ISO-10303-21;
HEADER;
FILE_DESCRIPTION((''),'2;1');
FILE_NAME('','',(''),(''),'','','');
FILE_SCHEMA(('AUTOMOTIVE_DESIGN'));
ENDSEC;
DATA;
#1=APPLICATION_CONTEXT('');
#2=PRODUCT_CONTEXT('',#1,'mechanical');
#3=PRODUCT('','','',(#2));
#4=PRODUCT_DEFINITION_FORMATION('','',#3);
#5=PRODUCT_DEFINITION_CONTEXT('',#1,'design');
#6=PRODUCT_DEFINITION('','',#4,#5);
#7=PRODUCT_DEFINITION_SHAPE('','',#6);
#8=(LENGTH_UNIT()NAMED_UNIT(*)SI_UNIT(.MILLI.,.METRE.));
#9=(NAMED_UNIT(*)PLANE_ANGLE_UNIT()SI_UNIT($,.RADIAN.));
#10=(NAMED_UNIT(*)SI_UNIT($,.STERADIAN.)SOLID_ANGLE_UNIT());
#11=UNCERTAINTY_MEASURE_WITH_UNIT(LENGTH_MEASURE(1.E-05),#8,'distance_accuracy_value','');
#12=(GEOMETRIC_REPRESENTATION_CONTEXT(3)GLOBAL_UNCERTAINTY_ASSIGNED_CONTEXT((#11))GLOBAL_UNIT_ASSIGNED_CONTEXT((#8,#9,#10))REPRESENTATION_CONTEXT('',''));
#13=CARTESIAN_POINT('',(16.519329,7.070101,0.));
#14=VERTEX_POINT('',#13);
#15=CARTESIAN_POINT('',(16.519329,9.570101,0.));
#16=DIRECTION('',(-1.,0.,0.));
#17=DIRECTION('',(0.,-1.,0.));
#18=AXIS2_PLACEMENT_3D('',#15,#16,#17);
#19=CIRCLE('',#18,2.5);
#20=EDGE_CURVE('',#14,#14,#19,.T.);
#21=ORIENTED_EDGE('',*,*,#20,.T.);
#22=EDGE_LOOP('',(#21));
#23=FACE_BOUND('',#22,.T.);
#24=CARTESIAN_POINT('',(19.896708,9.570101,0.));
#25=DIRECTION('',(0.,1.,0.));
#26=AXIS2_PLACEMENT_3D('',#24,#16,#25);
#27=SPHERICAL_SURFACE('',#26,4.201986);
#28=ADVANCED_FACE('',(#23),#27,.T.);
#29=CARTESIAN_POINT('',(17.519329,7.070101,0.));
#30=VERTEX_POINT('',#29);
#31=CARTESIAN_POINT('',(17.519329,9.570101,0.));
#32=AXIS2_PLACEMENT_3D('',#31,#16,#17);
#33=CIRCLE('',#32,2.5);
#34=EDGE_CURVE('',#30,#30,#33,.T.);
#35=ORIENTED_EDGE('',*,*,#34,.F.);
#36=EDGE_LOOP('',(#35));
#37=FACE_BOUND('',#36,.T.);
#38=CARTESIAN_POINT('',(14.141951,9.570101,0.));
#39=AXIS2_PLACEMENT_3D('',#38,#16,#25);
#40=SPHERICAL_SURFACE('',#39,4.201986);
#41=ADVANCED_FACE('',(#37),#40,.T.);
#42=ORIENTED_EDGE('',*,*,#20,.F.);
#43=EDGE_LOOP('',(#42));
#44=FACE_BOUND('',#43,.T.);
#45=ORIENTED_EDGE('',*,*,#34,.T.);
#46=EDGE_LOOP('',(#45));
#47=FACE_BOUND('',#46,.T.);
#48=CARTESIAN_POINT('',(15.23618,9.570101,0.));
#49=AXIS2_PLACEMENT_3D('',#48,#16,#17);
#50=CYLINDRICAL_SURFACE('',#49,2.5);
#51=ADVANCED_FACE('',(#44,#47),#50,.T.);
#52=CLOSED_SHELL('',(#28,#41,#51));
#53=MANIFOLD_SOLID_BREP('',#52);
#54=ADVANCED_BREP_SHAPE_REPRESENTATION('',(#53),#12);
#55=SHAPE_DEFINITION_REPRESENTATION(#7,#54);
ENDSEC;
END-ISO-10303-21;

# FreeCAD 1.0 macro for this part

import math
import FreeCAD as App
import Part
import Sketcher

V = App.Vector
Q = App.Units.Quantity

doc = App.newDocument("Part")
body = doc.addObject("PartDesign::Body", "Body")

# Sketch on XY plane
sketch1 = body.newObject("Sketcher::SketchObject", "Sketch")
sketch1.AttachmentSupport = (doc.getObject("XY_Plane"), [""])
sketch1.MapMode = "FlatFace"
sketch1.addGeometry([
    Part.LineSegment(V(17.5, 12.1, 0), V(16.5, 12.1, 0)),
    Part.ArcOfCircle(Part.Circle(V(19.9, 9.6, 0), V(0, 0, 1), 4.2), math.radians(143), math.radians(180)),
    Part.LineSegment(V(15.7, 9.6, 0), V(18.3, 9.6, 0)),
    Part.ArcOfCircle(Part.Circle(V(14.1, 9.6, 0), V(0, 0, 1), 4.2), math.radians(0), math.radians(37)),
], False)
sketch1.addGeometry(Part.LineSegment(V(14.1, 9.6, 0), V(19.9, 9.6, 0)), True)  # axis
sketch1.addConstraint([
    Sketcher.Constraint("Coincident", 0, 2, 1, 1),
    Sketcher.Constraint("Coincident", 1, 2, 2, 1),
    Sketcher.Constraint("Coincident", 2, 2, 3, 1),
    Sketcher.Constraint("Coincident", 3, 2, 0, 1),
    Sketcher.Constraint("Horizontal", 0),
    Sketcher.Constraint("Horizontal", 2),
    Sketcher.Constraint("Horizontal", 4),
    Sketcher.Constraint("Coincident", 4, 1, 3, 3),
    Sketcher.Constraint("Coincident", 4, 2, 1, 3),
    Sketcher.Constraint("Equal", 1, 3),
    Sketcher.Constraint("Horizontal", 3, 3, 1, 2),
    Sketcher.Constraint("DistanceX", 0, 2, 0, 1, Q("1 mm")),
    Sketcher.Constraint("DistanceY", 3, 3, 0, 2, Q("2.5 mm")),
    Sketcher.Constraint("Radius", 1, Q("4.201986 mm")),
    Sketcher.Constraint("DistanceY", -1, 1, 1, 3, Q("9.570101 mm")),
    Sketcher.Constraint("DistanceX", -1, 1, 3, 3, Q("14.141951 mm")),
])
revolution = body.newObject("PartDesign::Revolution", "Revolution")
revolution.Profile = sketch1
revolution.ReferenceAxis = (sketch1, ["Axis0"])
revolution.Angle = 360

doc.recompute()
